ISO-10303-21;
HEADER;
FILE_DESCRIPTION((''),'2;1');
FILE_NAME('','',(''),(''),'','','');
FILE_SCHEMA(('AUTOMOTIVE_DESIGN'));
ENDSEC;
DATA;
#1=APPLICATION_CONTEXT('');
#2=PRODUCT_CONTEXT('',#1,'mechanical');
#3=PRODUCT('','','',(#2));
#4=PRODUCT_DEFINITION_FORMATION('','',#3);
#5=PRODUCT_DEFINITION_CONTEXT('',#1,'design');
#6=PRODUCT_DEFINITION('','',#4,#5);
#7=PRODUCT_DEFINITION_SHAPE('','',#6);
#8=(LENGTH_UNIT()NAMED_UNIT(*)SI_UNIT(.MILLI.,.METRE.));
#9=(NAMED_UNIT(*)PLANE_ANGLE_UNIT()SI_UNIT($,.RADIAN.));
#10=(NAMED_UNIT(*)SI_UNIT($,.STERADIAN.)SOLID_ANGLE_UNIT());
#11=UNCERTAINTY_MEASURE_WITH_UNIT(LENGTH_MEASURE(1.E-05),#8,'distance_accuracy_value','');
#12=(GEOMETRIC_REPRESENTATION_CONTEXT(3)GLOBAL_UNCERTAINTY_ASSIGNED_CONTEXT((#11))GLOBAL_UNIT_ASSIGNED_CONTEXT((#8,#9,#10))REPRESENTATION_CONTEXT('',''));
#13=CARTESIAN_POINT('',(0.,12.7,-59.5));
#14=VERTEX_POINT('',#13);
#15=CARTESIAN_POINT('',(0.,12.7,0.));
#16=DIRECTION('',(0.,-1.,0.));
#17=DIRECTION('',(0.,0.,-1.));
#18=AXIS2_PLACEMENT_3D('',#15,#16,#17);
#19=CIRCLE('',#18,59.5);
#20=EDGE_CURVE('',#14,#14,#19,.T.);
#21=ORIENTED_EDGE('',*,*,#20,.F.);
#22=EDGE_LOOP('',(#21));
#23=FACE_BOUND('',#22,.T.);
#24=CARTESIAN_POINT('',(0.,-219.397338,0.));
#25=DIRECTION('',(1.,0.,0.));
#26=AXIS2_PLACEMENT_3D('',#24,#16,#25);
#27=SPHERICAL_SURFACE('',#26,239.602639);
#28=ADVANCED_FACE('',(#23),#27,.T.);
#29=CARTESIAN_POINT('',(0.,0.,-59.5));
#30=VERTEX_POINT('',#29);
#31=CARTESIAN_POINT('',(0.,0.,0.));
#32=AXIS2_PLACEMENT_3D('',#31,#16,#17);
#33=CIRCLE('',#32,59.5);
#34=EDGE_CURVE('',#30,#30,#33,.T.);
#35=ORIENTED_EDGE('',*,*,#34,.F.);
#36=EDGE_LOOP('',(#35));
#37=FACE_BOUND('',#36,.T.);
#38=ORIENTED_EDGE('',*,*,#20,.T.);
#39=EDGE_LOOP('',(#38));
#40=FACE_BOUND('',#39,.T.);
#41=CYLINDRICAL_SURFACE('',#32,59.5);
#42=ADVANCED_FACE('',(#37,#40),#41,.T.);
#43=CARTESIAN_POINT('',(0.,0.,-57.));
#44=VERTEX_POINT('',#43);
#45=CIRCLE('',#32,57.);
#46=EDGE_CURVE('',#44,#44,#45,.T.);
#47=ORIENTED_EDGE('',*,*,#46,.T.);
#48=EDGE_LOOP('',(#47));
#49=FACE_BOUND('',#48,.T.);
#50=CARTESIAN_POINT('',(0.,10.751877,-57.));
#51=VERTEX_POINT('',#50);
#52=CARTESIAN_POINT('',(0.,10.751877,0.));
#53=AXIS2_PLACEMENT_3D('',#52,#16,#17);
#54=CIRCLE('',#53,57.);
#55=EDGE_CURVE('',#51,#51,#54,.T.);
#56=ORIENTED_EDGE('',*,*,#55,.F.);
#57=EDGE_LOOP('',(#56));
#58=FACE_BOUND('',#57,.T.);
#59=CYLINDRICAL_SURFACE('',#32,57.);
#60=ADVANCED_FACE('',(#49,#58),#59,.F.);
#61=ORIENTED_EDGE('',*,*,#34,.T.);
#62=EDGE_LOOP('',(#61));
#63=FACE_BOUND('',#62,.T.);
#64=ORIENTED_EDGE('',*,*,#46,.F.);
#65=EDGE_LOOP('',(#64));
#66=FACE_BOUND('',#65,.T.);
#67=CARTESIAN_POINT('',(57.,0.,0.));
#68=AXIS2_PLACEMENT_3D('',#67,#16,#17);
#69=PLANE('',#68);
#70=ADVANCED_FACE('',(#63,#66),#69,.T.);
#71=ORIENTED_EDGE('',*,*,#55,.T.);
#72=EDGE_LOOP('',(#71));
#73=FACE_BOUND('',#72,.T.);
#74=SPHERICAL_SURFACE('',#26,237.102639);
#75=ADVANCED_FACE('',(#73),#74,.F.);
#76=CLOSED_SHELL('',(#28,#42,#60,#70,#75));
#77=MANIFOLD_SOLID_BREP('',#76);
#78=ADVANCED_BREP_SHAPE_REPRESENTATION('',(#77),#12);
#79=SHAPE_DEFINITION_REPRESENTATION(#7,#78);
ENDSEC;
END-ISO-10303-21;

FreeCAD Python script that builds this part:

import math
import FreeCAD as App
import Part
import Sketcher

V = App.Vector
Q = App.Units.Quantity

doc = App.newDocument("Part")
body = doc.addObject("PartDesign::Body", "Body")

# Sketch on XY plane
sketch1 = body.newObject("Sketcher::SketchObject", "Sketch")
sketch1.AttachmentSupport = (doc.getObject("XY_Plane"), [""])
sketch1.MapMode = "FlatFace"
sketch1.addGeometry([
    Part.LineSegment(V(57, 0, 0), V(59.5, 0, 0)),  # 0
    Part.LineSegment(V(59.5, 0, 0), V(59.5, 12.7, 0)),  # 1
    Part.ArcOfCircle(Part.Circle(V(0, -219.4, 0), V(0, 0, 1), 239.6), math.radians(75.62), math.radians(90)),  # 2
    Part.LineSegment(V(0, 20.2, 0), V(0, 17.7, 0)),  # 3
    Part.ArcOfCircle(Part.Circle(V(0, -219.4, 0), V(0, 0, 1), 237.1), math.radians(76.09), math.radians(90)),  # 4
    Part.LineSegment(V(57, 10.8, 0), V(57, 0, 0)),  # 5
], False)
sketch1.addConstraint([
    Sketcher.Constraint("Coincident", 0, 2, 1, 1),
    Sketcher.Constraint("Coincident", 1, 2, 2, 1),
    Sketcher.Constraint("Coincident", 2, 2, 3, 1),
    Sketcher.Constraint("Coincident", 3, 2, 4, 2),
    Sketcher.Constraint("Coincident", 4, 1, 5, 1),
    Sketcher.Constraint("Coincident", 5, 2, 0, 1),
    Sketcher.Constraint("Horizontal", 0),
    Sketcher.Constraint("Vertical", 1),
    Sketcher.Constraint("Vertical", 3),
    Sketcher.Constraint("Vertical", 5),
    Sketcher.Constraint("Coincident", 4, 3, 2, 3),
    Sketcher.Constraint("PointOnObject", 2, 3, -2),
    Sketcher.Constraint("PointOnObject", 0, 2, -1),
    Sketcher.Constraint("PointOnObject", 2, 2, -2),
    Sketcher.Constraint("Equal", 0, 3),
    Sketcher.Constraint("DistanceX", 0, 1, 0, 2, Q("2.5 mm")),
    Sketcher.Constraint("DistanceY", 1, 1, 1, 2, Q("12.7 mm")),
    Sketcher.Constraint("DistanceX", -1, 1, 5, 2, Q("57 mm")),
    Sketcher.Constraint("Radius", 2, Q("239.602639 mm")),
])
revolution = body.newObject("PartDesign::Revolution", "Revolution")
revolution.Profile = sketch1
revolution.ReferenceAxis = (sketch1, ["V_Axis"])
revolution.Angle = 360

doc.recompute()
